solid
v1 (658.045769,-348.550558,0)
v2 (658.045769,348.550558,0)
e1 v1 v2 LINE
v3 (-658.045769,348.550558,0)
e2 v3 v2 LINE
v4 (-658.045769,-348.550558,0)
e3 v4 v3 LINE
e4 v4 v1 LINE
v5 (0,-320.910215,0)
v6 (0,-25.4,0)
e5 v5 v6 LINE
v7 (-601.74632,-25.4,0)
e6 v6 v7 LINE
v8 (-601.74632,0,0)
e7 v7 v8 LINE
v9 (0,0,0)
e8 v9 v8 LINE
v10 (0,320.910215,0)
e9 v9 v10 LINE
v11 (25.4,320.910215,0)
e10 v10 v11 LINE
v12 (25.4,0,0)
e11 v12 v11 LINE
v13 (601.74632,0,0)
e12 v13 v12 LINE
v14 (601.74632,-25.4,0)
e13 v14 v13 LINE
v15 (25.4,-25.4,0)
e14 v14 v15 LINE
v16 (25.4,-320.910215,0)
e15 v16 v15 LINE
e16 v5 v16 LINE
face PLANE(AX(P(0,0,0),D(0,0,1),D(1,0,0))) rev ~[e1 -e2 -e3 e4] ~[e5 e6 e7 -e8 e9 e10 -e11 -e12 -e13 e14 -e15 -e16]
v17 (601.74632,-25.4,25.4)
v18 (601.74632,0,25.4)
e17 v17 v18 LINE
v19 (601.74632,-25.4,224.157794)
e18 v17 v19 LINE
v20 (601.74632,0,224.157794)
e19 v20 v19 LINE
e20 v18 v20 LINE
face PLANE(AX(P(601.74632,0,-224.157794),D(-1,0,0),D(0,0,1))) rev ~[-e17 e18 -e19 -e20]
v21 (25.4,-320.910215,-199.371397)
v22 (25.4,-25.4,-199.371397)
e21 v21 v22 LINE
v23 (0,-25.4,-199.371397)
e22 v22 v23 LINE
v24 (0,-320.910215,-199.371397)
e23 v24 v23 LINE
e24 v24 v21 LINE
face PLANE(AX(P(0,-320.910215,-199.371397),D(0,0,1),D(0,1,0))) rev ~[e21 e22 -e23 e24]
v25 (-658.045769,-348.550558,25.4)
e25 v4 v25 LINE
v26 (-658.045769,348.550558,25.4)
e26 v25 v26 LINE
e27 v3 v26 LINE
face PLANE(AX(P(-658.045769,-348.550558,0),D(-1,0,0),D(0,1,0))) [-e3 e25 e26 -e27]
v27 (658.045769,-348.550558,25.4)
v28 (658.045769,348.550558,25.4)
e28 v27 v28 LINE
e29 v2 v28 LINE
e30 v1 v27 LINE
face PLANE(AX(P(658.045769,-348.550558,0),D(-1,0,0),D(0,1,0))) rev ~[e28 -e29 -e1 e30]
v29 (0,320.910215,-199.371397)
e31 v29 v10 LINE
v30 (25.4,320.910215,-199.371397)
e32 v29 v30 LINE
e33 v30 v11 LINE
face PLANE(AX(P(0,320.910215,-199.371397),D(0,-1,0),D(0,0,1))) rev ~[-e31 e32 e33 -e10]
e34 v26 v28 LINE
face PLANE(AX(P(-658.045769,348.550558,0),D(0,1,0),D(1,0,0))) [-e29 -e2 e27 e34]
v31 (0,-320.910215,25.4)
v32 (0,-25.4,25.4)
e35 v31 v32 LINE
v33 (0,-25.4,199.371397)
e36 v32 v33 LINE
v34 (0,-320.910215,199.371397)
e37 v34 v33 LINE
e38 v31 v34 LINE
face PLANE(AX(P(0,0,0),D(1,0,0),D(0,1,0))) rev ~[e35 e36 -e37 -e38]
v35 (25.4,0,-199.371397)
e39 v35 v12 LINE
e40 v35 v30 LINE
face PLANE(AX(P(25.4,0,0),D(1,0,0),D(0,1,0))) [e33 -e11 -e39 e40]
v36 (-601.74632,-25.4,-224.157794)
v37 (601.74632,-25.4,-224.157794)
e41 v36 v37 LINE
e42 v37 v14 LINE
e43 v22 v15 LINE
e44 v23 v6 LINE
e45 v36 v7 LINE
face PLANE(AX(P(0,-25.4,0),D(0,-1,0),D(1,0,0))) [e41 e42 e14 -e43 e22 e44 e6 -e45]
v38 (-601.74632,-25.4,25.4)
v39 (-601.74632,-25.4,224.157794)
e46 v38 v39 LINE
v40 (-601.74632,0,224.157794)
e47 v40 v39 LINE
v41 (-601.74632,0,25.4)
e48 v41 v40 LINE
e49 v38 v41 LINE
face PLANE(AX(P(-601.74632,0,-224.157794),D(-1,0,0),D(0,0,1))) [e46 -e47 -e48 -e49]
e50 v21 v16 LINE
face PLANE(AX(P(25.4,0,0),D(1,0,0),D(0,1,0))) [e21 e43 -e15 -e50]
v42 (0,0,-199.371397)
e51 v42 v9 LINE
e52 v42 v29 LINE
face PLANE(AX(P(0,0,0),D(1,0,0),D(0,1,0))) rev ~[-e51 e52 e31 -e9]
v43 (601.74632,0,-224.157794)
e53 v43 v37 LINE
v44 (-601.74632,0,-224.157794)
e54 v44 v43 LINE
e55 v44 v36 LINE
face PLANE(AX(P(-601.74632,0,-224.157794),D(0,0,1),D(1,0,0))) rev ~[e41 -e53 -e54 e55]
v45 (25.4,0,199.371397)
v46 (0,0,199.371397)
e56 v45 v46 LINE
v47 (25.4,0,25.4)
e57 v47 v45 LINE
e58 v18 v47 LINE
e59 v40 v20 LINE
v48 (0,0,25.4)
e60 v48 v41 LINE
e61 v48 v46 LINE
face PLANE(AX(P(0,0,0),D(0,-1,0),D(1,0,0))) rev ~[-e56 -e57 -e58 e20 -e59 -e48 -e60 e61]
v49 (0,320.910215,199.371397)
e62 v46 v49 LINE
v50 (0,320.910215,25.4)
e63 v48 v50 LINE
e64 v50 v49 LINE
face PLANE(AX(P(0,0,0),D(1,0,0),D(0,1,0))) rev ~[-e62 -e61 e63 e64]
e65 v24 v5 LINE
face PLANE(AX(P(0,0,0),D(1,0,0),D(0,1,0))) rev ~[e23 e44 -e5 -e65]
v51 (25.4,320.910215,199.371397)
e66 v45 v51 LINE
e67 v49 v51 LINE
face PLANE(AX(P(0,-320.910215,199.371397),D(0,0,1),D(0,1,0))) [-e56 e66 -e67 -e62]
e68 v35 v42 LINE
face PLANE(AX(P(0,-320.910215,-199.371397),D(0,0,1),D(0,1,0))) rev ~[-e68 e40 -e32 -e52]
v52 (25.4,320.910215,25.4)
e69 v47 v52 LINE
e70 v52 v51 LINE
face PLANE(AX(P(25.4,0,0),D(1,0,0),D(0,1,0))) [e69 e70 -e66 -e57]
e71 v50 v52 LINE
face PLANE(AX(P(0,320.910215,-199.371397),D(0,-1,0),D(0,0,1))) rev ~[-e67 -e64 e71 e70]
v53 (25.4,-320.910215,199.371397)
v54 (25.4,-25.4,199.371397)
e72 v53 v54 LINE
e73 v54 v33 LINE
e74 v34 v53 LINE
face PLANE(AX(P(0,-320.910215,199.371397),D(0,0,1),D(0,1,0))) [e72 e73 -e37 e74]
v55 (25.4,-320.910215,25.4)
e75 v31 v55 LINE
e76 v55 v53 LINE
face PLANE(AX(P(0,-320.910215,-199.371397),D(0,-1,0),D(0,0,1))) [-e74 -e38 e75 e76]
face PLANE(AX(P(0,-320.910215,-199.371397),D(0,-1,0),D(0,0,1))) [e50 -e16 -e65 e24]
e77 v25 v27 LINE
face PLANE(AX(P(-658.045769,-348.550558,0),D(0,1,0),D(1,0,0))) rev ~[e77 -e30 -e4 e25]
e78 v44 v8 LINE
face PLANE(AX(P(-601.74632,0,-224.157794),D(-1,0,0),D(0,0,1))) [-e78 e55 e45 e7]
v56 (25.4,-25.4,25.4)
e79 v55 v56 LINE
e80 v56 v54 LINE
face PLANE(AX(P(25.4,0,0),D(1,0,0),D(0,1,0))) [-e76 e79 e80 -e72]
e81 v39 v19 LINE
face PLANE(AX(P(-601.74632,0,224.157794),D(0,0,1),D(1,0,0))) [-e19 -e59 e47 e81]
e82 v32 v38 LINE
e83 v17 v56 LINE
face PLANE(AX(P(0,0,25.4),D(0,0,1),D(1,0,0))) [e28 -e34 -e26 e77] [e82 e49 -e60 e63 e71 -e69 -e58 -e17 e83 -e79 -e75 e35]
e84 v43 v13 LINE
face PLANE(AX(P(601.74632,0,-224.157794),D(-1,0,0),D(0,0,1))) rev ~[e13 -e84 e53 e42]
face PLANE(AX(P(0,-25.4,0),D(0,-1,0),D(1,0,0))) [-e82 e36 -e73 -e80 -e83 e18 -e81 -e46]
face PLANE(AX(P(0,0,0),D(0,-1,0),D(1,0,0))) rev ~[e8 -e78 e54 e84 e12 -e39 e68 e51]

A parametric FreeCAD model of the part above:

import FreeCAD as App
import Part
import Sketcher

V = App.Vector
Q = App.Units.Quantity

doc = App.newDocument("Part")
body = doc.addObject("PartDesign::Body", "Body")

# Sketch on XZ plane
sketch1 = body.newObject("Sketcher::SketchObject", "Sketch")
sketch1.AttachmentSupport = (doc.getObject("XZ_Plane"), [""])
sketch1.MapMode = "FlatFace"
sketch1.addGeometry(Part.LineSegment(V(-602, 224, 0), V(-602, -224, 0)), False)
sketch1.addGeometry(Part.LineSegment(V(-602, -224, 0), V(602, -224, 0)), False)
sketch1.addGeometry(Part.LineSegment(V(602, -224, 0), V(602, 224, 0)), False)
sketch1.addGeometry(Part.LineSegment(V(602, 224, 0), V(-602, 224, 0)), False)
sketch1.addConstraint(Sketcher.Constraint("Coincident", 0, 2, 1, 1))
sketch1.addConstraint(Sketcher.Constraint("Coincident", 1, 2, 2, 1))
sketch1.addConstraint(Sketcher.Constraint("Coincident", 2, 2, 3, 1))
sketch1.addConstraint(Sketcher.Constraint("Coincident", 3, 2, 0, 1))
sketch1.addConstraint(Sketcher.Constraint("Vertical", 0))
sketch1.addConstraint(Sketcher.Constraint("Horizontal", 1))
sketch1.addConstraint(Sketcher.Constraint("Vertical", 2))
sketch1.addConstraint(Sketcher.Constraint("Horizontal", 3))
sketch1.addConstraint(Sketcher.Constraint("Symmetric", 0, 2, 2, 2, -1, 1))
sketch1.addConstraint(Sketcher.Constraint("DistanceX", 1, 1, 1, 2, Q("47.3816 in")))
sketch1.addConstraint(Sketcher.Constraint("DistanceY", 0, 2, 0, 1, Q("448.315588 mm")))
pad1 = body.newObject("PartDesign::Pad", "Pad")
pad1.Profile = sketch1
pad1.Length = Q("1 in")

# Sketch on XY plane
sketch2 = body.newObject("Sketcher::SketchObject", "Sketch001")
sketch2.AttachmentSupport = (doc.getObject("XY_Plane"), [""])
sketch2.MapMode = "FlatFace"
sketch2.addGeometry(Part.LineSegment(V(-658, 349, 0), V(-658, -349, 0)), False)
sketch2.addGeometry(Part.LineSegment(V(-658, -349, 0), V(658, -349, 0)), False)
sketch2.addGeometry(Part.LineSegment(V(658, -349, 0), V(658, 349, 0)), False)
sketch2.addGeometry(Part.LineSegment(V(658, 349, 0), V(-658, 349, 0)), False)
sketch2.addConstraint(Sketcher.Constraint("Coincident", 0, 2, 1, 1))
sketch2.addConstraint(Sketcher.Constraint("Coincident", 1, 2, 2, 1))
sketch2.addConstraint(Sketcher.Constraint("Coincident", 2, 2, 3, 1))
sketch2.addConstraint(Sketcher.Constraint("Coincident", 3, 2, 0, 1))
sketch2.addConstraint(Sketcher.Constraint("Vertical", 0))
sketch2.addConstraint(Sketcher.Constraint("Horizontal", 1))
sketch2.addConstraint(Sketcher.Constraint("Vertical", 2))
sketch2.addConstraint(Sketcher.Constraint("Horizontal", 3))
sketch2.addConstraint(Sketcher.Constraint("Symmetric", 0, 2, 2, 2, -1, 1))
sketch2.addConstraint(Sketcher.Constraint("DistanceX", 1, 1, 1, 2, Q("1316.091538 mm")))
sketch2.addConstraint(Sketcher.Constraint("DistanceY", 0, 2, 0, 1, Q("697.101116 mm")))
pad2 = body.newObject("PartDesign::Pad", "Pad001")
pad2.Profile = sketch2
pad2.Length = Q("1 in")

# Sketch on YZ plane
sketch3 = body.newObject("Sketcher::SketchObject", "Sketch002")
sketch3.AttachmentSupport = (doc.getObject("YZ_Plane"), [""])
sketch3.MapMode = "FlatFace"
sketch3.addGeometry(Part.LineSegment(V(-321, 199, 0), V(-321, -199, 0)), False)
sketch3.addGeometry(Part.LineSegment(V(-321, -199, 0), V(321, -199, 0)), False)
sketch3.addGeometry(Part.LineSegment(V(321, -199, 0), V(321, 199, 0)), False)
sketch3.addGeometry(Part.LineSegment(V(321, 199, 0), V(-321, 199, 0)), False)
sketch3.addConstraint(Sketcher.Constraint("Coincident", 0, 2, 1, 1))
sketch3.addConstraint(Sketcher.Constraint("Coincident", 1, 2, 2, 1))
sketch3.addConstraint(Sketcher.Constraint("Coincident", 2, 2, 3, 1))
sketch3.addConstraint(Sketcher.Constraint("Coincident", 3, 2, 0, 1))
sketch3.addConstraint(Sketcher.Constraint("Vertical", 0))
sketch3.addConstraint(Sketcher.Constraint("Horizontal", 1))
sketch3.addConstraint(Sketcher.Constraint("Vertical", 2))
sketch3.addConstraint(Sketcher.Constraint("Horizontal", 3))
sketch3.addConstraint(Sketcher.Constraint("Symmetric", 0, 2, 2, 2, -1, 1))
sketch3.addConstraint(Sketcher.Constraint("DistanceX", 1, 1, 1, 2, Q("641.82043 mm")))
sketch3.addConstraint(Sketcher.Constraint("DistanceY", 0, 2, 0, 1, Q("398.742794 mm")))
pad3 = body.newObject("PartDesign::Pad", "Pad002")
pad3.Profile = sketch3
pad3.Length = Q("1 in")

doc.recompute()
